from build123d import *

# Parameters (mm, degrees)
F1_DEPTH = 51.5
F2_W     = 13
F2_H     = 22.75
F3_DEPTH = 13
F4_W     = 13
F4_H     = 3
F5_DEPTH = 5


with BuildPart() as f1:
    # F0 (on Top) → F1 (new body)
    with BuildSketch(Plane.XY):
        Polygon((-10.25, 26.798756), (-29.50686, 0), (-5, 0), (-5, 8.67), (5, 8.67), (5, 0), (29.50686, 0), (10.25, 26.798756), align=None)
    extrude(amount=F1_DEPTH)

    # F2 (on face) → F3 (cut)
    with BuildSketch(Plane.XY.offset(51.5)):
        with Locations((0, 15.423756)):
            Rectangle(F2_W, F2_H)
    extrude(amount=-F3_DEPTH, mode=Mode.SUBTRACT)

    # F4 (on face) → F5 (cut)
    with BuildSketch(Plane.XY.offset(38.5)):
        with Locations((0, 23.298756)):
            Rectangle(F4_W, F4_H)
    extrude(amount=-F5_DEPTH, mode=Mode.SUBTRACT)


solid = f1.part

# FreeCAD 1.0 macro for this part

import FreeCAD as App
import Part
import Sketcher
Q = App.Units.Quantity

doc = App.newDocument("Part")
body = doc.addObject("PartDesign::Body", "Body")

# Sketch on XY plane
sketch1 = body.newObject("Sketcher::SketchObject", "Sketch")
sketch1.AttachmentSupport = (doc.getObject("XY_Plane"), [""])
sketch1.MapMode = "FlatFace"
sketch1.addGeometry([
    Part.LineSegment(App.Vector(-10, 27, 0), App.Vector(-30, 0, 0)),  # 0
    Part.LineSegment(App.Vector(-30, 0, 0), App.Vector(-5, 0, 0)),  # 1
    Part.LineSegment(App.Vector(-5, 0, 0), App.Vector(-5, 9, 0)),  # 2
    Part.LineSegment(App.Vector(-5, 9, 0), App.Vector(5, 9, 0)),  # 3
    Part.LineSegment(App.Vector(5, 9, 0), App.Vector(5, 0, 0)),  # 4
    Part.LineSegment(App.Vector(5, 0, 0), App.Vector(30, 0, 0)),  # 5
    Part.LineSegment(App.Vector(30, 0, 0), App.Vector(10, 27, 0)),  # 6
    Part.LineSegment(App.Vector(10, 27, 0), App.Vector(-10, 27, 0)),  # 7
], False)
sketch1.addConstraint([
    Sketcher.Constraint("Coincident", 0, 2, 1, 1),
    Sketcher.Constraint("Coincident", 1, 2, 2, 1),
    Sketcher.Constraint("Coincident", 2, 2, 3, 1),
    Sketcher.Constraint("Coincident", 3, 2, 4, 1),
    Sketcher.Constraint("Coincident", 4, 2, 5, 1),
    Sketcher.Constraint("Coincident", 5, 2, 6, 1),
    Sketcher.Constraint("Coincident", 6, 2, 7, 1),
    Sketcher.Constraint("Coincident", 7, 2, 0, 1),
    Sketcher.Constraint("Horizontal", 1),
    Sketcher.Constraint("Vertical", 2),
    Sketcher.Constraint("Horizontal", 3),
    Sketcher.Constraint("Vertical", 4),
    Sketcher.Constraint("Horizontal", 5),
    Sketcher.Constraint("Horizontal", 7),
    Sketcher.Constraint("Symmetric", 1, 2, 4, 2, -1, 1),
    Sketcher.Constraint("Symmetric", 0, 2, 5, 2, -2),
    Sketcher.Constraint("Equal", 0, 6),
    Sketcher.Constraint("DistanceX", 3, 1, 3, 2, 10.0),
    Sketcher.Constraint("Distance", 0, 33.0),
    Sketcher.Constraint("DistanceX", 7, 2, 7, 1, 20.5),
    Sketcher.Constraint("Angle", 0, Q("-125.7 deg")),
    Sketcher.Constraint("DistanceY", 2, 1, 2, 2, 8.67),
])
pad1 = body.newObject("PartDesign::Pad", "Pad")
pad1.Profile = sketch1
pad1.Length = 51.5

# Sketch on XY plane
sketch2 = body.newObject("Sketcher::SketchObject", "Sketch001")
sketch2.AttachmentSupport = (doc.getObject("XY_Plane"), [""])
sketch2.MapMode = "FlatFace"
sketch2.AttachmentOffset = App.Placement(App.Vector(0, 0, 51.5), App.Rotation())
sketch2.addGeometry([
    Part.LineSegment(App.Vector(-6, 27, 0), App.Vector(-6, 4, 0)),
    Part.LineSegment(App.Vector(-6, 4, 0), App.Vector(6, 4, 0)),
    Part.LineSegment(App.Vector(6, 4, 0), App.Vector(6, 27, 0)),
    Part.LineSegment(App.Vector(6, 27, 0), App.Vector(-6, 27, 0)),
], False)
sketch2.addConstraint([
    Sketcher.Constraint("Coincident", 0, 2, 1, 1),
    Sketcher.Constraint("Coincident", 1, 2, 2, 1),
    Sketcher.Constraint("Coincident", 2, 2, 3, 1),
    Sketcher.Constraint("Coincident", 3, 2, 0, 1),
    Sketcher.Constraint("Vertical", 0),
    Sketcher.Constraint("Horizontal", 1),
    Sketcher.Constraint("Vertical", 2),
    Sketcher.Constraint("Horizontal", 3),
    Sketcher.Constraint("DistanceX", 1, 1, 1, 2, 13.0),
    Sketcher.Constraint("DistanceY", 0, 2, 0, 1, 22.75),
    Sketcher.Constraint("DistanceX", 0, 2, -1, 1, 6.5),
    Sketcher.Constraint("DistanceY", -1, 1, 0, 2, 4.048756),
])
pocket1 = body.newObject("PartDesign::Pocket", "Pocket")
pocket1.Profile = sketch2
pocket1.Length = 13

# Sketch on XY plane
sketch3 = body.newObject("Sketcher::SketchObject", "Sketch002")
sketch3.AttachmentSupport = (doc.getObject("XY_Plane"), [""])
sketch3.MapMode = "FlatFace"
sketch3.AttachmentOffset = App.Placement(App.Vector(0, 0, 38.5), App.Rotation())
sketch3.addGeometry([
    Part.LineSegment(App.Vector(-6.5, 24.8, 0), App.Vector(-6.5, 21.8, 0)),
    Part.LineSegment(App.Vector(-6.5, 21.8, 0), App.Vector(6.5, 21.8, 0)),
    Part.LineSegment(App.Vector(6.5, 21.8, 0), App.Vector(6.5, 24.8, 0)),
    Part.LineSegment(App.Vector(6.5, 24.8, 0), App.Vector(-6.5, 24.8, 0)),
], False)
sketch3.addConstraint([
    Sketcher.Constraint("Coincident", 0, 2, 1, 1),
    Sketcher.Constraint("Coincident", 1, 2, 2, 1),
    Sketcher.Constraint("Coincident", 2, 2, 3, 1),
    Sketcher.Constraint("Coincident", 3, 2, 0, 1),
    Sketcher.Constraint("Vertical", 0),
    Sketcher.Constraint("Horizontal", 1),
    Sketcher.Constraint("Vertical", 2),
    Sketcher.Constraint("Horizontal", 3),
    Sketcher.Constraint("DistanceX", 1, 1, 1, 2, 13.0),
    Sketcher.Constraint("DistanceY", 0, 2, 0, 1, 3.0),
    Sketcher.Constraint("DistanceX", 0, 2, -1, 1, 6.5),
    Sketcher.Constraint("DistanceY", -1, 1, 0, 2, 21.798756),
])
pocket2 = body.newObject("PartDesign::Pocket", "Pocket001")
pocket2.Profile = sketch3
pocket2.Length = 5

doc.recompute()
